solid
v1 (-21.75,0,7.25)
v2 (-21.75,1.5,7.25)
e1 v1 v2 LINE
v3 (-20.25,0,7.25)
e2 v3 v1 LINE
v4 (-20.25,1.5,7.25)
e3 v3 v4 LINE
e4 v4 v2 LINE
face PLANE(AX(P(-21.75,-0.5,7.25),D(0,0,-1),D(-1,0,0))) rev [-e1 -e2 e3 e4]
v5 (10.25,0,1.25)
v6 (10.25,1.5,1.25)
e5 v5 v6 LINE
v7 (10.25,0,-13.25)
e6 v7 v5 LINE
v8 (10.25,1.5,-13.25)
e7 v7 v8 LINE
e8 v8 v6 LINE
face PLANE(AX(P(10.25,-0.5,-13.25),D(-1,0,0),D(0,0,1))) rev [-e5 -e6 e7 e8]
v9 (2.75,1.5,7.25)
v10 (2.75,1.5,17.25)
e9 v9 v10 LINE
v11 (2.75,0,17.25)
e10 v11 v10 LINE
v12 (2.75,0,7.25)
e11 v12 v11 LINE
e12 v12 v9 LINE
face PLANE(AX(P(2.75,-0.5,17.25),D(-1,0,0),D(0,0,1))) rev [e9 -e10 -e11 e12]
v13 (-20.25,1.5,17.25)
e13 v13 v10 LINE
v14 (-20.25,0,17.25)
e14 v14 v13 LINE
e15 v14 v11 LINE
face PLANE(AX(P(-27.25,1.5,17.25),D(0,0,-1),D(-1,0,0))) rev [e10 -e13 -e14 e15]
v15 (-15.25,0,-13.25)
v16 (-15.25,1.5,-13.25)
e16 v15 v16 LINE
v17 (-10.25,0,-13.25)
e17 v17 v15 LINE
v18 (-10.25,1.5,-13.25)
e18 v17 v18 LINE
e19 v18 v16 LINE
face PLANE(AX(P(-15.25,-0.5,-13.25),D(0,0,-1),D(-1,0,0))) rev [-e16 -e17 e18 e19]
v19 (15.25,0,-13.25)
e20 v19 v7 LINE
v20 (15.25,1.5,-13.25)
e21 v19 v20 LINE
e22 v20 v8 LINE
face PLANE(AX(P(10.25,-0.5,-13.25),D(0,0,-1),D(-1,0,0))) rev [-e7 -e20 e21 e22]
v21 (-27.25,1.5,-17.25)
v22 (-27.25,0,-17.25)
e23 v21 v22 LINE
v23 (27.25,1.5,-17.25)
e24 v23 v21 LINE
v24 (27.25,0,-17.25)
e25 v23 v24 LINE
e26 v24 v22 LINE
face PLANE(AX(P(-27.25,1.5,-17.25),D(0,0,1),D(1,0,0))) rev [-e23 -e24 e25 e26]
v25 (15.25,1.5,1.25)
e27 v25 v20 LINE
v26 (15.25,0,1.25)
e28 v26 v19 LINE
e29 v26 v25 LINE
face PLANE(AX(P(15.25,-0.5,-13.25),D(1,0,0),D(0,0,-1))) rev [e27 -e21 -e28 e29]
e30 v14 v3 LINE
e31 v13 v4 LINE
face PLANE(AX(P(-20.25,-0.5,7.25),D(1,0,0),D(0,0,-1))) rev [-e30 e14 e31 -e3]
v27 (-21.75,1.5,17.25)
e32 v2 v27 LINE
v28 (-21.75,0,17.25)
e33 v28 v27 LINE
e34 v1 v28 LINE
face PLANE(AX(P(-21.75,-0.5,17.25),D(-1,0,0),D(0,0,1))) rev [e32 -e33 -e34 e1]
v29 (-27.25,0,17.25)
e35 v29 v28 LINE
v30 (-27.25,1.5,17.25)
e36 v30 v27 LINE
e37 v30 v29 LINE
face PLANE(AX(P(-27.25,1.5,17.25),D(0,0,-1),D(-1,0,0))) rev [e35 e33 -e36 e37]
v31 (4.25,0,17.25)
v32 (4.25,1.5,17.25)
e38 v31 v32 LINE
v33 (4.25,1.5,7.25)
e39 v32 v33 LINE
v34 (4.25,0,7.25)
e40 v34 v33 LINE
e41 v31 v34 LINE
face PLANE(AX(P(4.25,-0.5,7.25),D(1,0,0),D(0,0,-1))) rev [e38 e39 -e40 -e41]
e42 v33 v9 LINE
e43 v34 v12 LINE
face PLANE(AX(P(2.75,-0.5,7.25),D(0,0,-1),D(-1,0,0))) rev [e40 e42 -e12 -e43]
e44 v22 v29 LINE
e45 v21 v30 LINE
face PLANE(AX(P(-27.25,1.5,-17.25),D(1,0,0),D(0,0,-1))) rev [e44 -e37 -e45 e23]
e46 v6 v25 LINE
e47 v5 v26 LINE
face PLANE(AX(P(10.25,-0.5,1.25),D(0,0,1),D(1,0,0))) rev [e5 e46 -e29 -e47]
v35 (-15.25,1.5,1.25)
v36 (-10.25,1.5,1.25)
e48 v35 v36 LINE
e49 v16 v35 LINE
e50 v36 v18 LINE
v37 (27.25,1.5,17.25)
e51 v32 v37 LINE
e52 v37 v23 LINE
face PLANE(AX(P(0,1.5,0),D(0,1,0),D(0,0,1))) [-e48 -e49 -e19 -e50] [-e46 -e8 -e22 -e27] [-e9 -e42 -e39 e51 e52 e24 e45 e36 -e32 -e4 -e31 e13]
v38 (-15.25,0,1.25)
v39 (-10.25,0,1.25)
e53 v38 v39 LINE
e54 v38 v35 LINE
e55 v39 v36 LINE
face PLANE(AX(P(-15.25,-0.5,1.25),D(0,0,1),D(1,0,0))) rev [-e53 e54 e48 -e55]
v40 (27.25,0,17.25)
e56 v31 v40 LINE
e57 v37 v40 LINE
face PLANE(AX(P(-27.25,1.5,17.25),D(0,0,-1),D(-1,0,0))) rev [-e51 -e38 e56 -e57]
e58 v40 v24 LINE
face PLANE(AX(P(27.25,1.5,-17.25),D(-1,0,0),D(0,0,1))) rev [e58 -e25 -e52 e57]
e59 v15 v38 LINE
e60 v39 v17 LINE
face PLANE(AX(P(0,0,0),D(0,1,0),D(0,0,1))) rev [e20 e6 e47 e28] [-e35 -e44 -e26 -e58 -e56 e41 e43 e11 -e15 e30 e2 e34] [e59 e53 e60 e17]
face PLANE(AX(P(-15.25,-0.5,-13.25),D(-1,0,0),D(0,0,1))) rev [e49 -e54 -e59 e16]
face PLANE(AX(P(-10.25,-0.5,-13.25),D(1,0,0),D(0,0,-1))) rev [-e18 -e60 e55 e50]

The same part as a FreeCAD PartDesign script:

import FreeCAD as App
import Part
import Sketcher

doc = App.newDocument("Part")
params = doc.addObject("Spreadsheet::Sheet", "Params")
for row, (alias, value) in enumerate([
    ("sketch1_width", "54.5 mm"),
    ("sketch1_height", "34.5 mm"),
    ("pad1_length", "1.5 mm"),
    ("sketch2_width", "5 mm"),
    ("sketch2_height", "14.5 mm"),
    ("pocket1_length", "2 mm"),
    ("sketch3_width", "5 mm"),
    ("sketch3_height", "14.5 mm"),
    ("pocket2_length", "2 mm"),
    ("sketch4_height", "10 mm"),
    ("sketch4_width", "1.5 mm"),
    ("pocket3_length", "2 mm"),
    ("sketch5_height", "10 mm"),
    ("sketch5_width", "1.5 mm"),
    ("pocket4_length", "2 mm"),
], start=1):
    params.set(f"A{row}", alias)
    params.set(f"B{row}", "=" + value)
    params.setAlias(f"B{row}", alias)

body = doc.addObject("PartDesign::Body", "Body")

# Sketch on XZ plane
sketch1 = doc.addObject("Sketcher::SketchObject", "Sketch")
body.addObject(sketch1)
sketch1.AttachmentSupport = (doc.XZ_Plane, [""])
sketch1.MapMode = "FlatFace"
sketch1.addGeometry(Part.LineSegment(App.Vector(-27, -17, 0), App.Vector(-27, 17, 0)), False)
sketch1.addGeometry(Part.LineSegment(App.Vector(-27, 17, 0), App.Vector(27, 17, 0)), False)
sketch1.addGeometry(Part.LineSegment(App.Vector(27, 17, 0), App.Vector(27, -17, 0)), False)
sketch1.addGeometry(Part.LineSegment(App.Vector(27, -17, 0), App.Vector(-27, -17, 0)), False)
sketch1.addConstraint(Sketcher.Constraint("Coincident", 0, 2, 1, 1))
sketch1.addConstraint(Sketcher.Constraint("Coincident", 1, 2, 2, 1))
sketch1.addConstraint(Sketcher.Constraint("Coincident", 2, 2, 3, 1))
sketch1.addConstraint(Sketcher.Constraint("Coincident", 3, 2, 0, 1))
sketch1.addConstraint(Sketcher.Constraint("Vertical", 0))
sketch1.addConstraint(Sketcher.Constraint("Horizontal", 1))
sketch1.addConstraint(Sketcher.Constraint("Vertical", 2))
sketch1.addConstraint(Sketcher.Constraint("Horizontal", 3))
sketch1.addConstraint(Sketcher.Constraint("Symmetric", 0, 2, 2, 2, -1, 1))
sketch1.addConstraint(Sketcher.Constraint("DistanceX", 1, 1, 1, 2, 54.5))
sketch1.addConstraint(Sketcher.Constraint("DistanceY", 0, 1, 0, 2, 34.5))
sketch1.setExpression("Constraints[9]", "Params.sketch1_width")
sketch1.setExpression("Constraints[10]", "Params.sketch1_height")
pad1 = doc.addObject("PartDesign::Pad", "Pad")
body.addObject(pad1)
pad1.Profile = sketch1
pad1.setExpression("Length", "Params.pad1_length")
pad1.Reversed = True

# Sketch on XZ plane
sketch2 = doc.addObject("Sketcher::SketchObject", "Sketch001")
body.addObject(sketch2)
sketch2.AttachmentSupport = (doc.XZ_Plane, [""])
sketch2.MapMode = "FlatFace"
sketch2.AttachmentOffset = App.Placement(App.Vector(0, 0, -1.5), App.Rotation())
sketch2.addGeometry(Part.LineSegment(App.Vector(-15, -13, 0), App.Vector(-15, 1, 0)), False)
sketch2.addGeometry(Part.LineSegment(App.Vector(-15, 1, 0), App.Vector(-10, 1, 0)), False)
sketch2.addGeometry(Part.LineSegment(App.Vector(-10, 1, 0), App.Vector(-10, -13, 0)), False)
sketch2.addGeometry(Part.LineSegment(App.Vector(-10, -13, 0), App.Vector(-15, -13, 0)), False)
sketch2.addConstraint(Sketcher.Constraint("Coincident", 0, 2, 1, 1))
sketch2.addConstraint(Sketcher.Constraint("Coincident", 1, 2, 2, 1))
sketch2.addConstraint(Sketcher.Constraint("Coincident", 2, 2, 3, 1))
sketch2.addConstraint(Sketcher.Constraint("Coincident", 3, 2, 0, 1))
sketch2.addConstraint(Sketcher.Constraint("Vertical", 0))
sketch2.addConstraint(Sketcher.Constraint("Horizontal", 1))
sketch2.addConstraint(Sketcher.Constraint("Vertical", 2))
sketch2.addConstraint(Sketcher.Constraint("Horizontal", 3))
sketch2.addConstraint(Sketcher.Constraint("DistanceX", 1, 1, 1, 2, 5.0))
sketch2.addConstraint(Sketcher.Constraint("DistanceY", 0, 1, 0, 2, 14.5))
sketch2.addConstraint(Sketcher.Constraint("DistanceX", 0, 2, -1, 1, 15.25))
sketch2.addConstraint(Sketcher.Constraint("DistanceY", -1, 1, 0, 2, 1.25))
sketch2.setExpression("Constraints[8]", "Params.sketch2_width")
sketch2.setExpression("Constraints[9]", "Params.sketch2_height")
pocket1 = doc.addObject("PartDesign::Pocket", "Pocket")
body.addObject(pocket1)
pocket1.Profile = sketch2
pocket1.setExpression("Length", "Params.pocket1_length")
pocket1.Reversed = True

# Sketch on XZ plane
sketch3 = doc.addObject("Sketcher::SketchObject", "Sketch002")
body.addObject(sketch3)
sketch3.AttachmentSupport = (doc.XZ_Plane, [""])
sketch3.MapMode = "FlatFace"
sketch3.AttachmentOffset = App.Placement(App.Vector(0, 0, -1.5), App.Rotation())
sketch3.addGeometry(Part.LineSegment(App.Vector(10, -13, 0), App.Vector(10, 1, 0)), False)
sketch3.addGeometry(Part.LineSegment(App.Vector(10, 1, 0), App.Vector(15, 1, 0)), False)
sketch3.addGeometry(Part.LineSegment(App.Vector(15, 1, 0), App.Vector(15, -13, 0)), False)
sketch3.addGeometry(Part.LineSegment(App.Vector(15, -13, 0), App.Vector(10, -13, 0)), False)
sketch3.addConstraint(Sketcher.Constraint("Coincident", 0, 2, 1, 1))
sketch3.addConstraint(Sketcher.Constraint("Coincident", 1, 2, 2, 1))
sketch3.addConstraint(Sketcher.Constraint("Coincident", 2, 2, 3, 1))
sketch3.addConstraint(Sketcher.Constraint("Coincident", 3, 2, 0, 1))
sketch3.addConstraint(Sketcher.Constraint("Vertical", 0))
sketch3.addConstraint(Sketcher.Constraint("Horizontal", 1))
sketch3.addConstraint(Sketcher.Constraint("Vertical", 2))
sketch3.addConstraint(Sketcher.Constraint("Horizontal", 3))
sketch3.addConstraint(Sketcher.Constraint("DistanceX", 1, 1, 1, 2, 5.0))
sketch3.addConstraint(Sketcher.Constraint("DistanceY", 0, 1, 0, 2, 14.5))
sketch3.addConstraint(Sketcher.Constraint("DistanceX", -1, 1, 0, 2, 10.25))
sketch3.addConstraint(Sketcher.Constraint("DistanceY", -1, 1, 0, 2, 1.25))
sketch3.setExpression("Constraints[8]", "Params.sketch3_width")
sketch3.setExpression("Constraints[9]", "Params.sketch3_height")
pocket2 = doc.addObject("PartDesign::Pocket", "Pocket001")
body.addObject(pocket2)
pocket2.Profile = sketch3
pocket2.setExpression("Length", "Params.pocket2_length")
pocket2.Reversed = True

# Sketch on XZ plane
sketch4 = doc.addObject("Sketcher::SketchObject", "Sketch003")
body.addObject(sketch4)
sketch4.AttachmentSupport = (doc.XZ_Plane, [""])
sketch4.MapMode = "FlatFace"
sketch4.AttachmentOffset = App.Placement(App.Vector(0, 0, -1.5), App.Rotation())
sketch4.addGeometry(Part.LineSegment(App.Vector(-21.8, 7.2, 0), App.Vector(-21.8, 17.2, 0)), False)
sketch4.addGeometry(Part.LineSegment(App.Vector(-21.8, 17.2, 0), App.Vector(-20.2, 17.2, 0)), False)
sketch4.addGeometry(Part.LineSegment(App.Vector(-20.2, 17.2, 0), App.Vector(-20.2, 7.2, 0)), False)
sketch4.addGeometry(Part.LineSegment(App.Vector(-20.2, 7.2, 0), App.Vector(-21.8, 7.2, 0)), False)
sketch4.addConstraint(Sketcher.Constraint("Coincident", 0, 2, 1, 1))
sketch4.addConstraint(Sketcher.Constraint("Coincident", 1, 2, 2, 1))
sketch4.addConstraint(Sketcher.Constraint("Coincident", 2, 2, 3, 1))
sketch4.addConstraint(Sketcher.Constraint("Coincident", 3, 2, 0, 1))
sketch4.addConstraint(Sketcher.Constraint("Vertical", 0))
sketch4.addConstraint(Sketcher.Constraint("Horizontal", 1))
sketch4.addConstraint(Sketcher.Constraint("Vertical", 2))
sketch4.addConstraint(Sketcher.Constraint("Horizontal", 3))
sketch4.addConstraint(Sketcher.Constraint("DistanceY", 0, 1, 0, 2, 10.0))
sketch4.addConstraint(Sketcher.Constraint("DistanceX", 1, 1, 1, 2, 1.5))
sketch4.addConstraint(Sketcher.Constraint("DistanceX", 0, 2, -1, 1, 21.75))
sketch4.addConstraint(Sketcher.Constraint("DistanceY", -1, 1, 0, 2, 17.25))
sketch4.setExpression("Constraints[8]", "Params.sketch4_height")
sketch4.setExpression("Constraints[9]", "Params.sketch4_width")
pocket3 = doc.addObject("PartDesign::Pocket", "Pocket002")
body.addObject(pocket3)
pocket3.Profile = sketch4
pocket3.setExpression("Length", "Params.pocket3_length")
pocket3.Reversed = True

# Sketch on XZ plane
sketch5 = doc.addObject("Sketcher::SketchObject", "Sketch004")
body.addObject(sketch5)
sketch5.AttachmentSupport = (doc.XZ_Plane, [""])
sketch5.MapMode = "FlatFace"
sketch5.AttachmentOffset = App.Placement(App.Vector(0, 0, -1.5), App.Rotation())
sketch5.addGeometry(Part.LineSegment(App.Vector(2.8, 7.2, 0), App.Vector(2.8, 17.2, 0)), False)
sketch5.addGeometry(Part.LineSegment(App.Vector(2.8, 17.2, 0), App.Vector(4.2, 17.2, 0)), False)
sketch5.addGeometry(Part.LineSegment(App.Vector(4.2, 17.2, 0), App.Vector(4.2, 7.2, 0)), False)
sketch5.addGeometry(Part.LineSegment(App.Vector(4.2, 7.2, 0), App.Vector(2.8, 7.2, 0)), False)
sketch5.addConstraint(Sketcher.Constraint("Coincident", 0, 2, 1, 1))
sketch5.addConstraint(Sketcher.Constraint("Coincident", 1, 2, 2, 1))
sketch5.addConstraint(Sketcher.Constraint("Coincident", 2, 2, 3, 1))
sketch5.addConstraint(Sketcher.Constraint("Coincident", 3, 2, 0, 1))
sketch5.addConstraint(Sketcher.Constraint("Vertical", 0))
sketch5.addConstraint(Sketcher.Constraint("Horizontal", 1))
sketch5.addConstraint(Sketcher.Constraint("Vertical", 2))
sketch5.addConstraint(Sketcher.Constraint("Horizontal", 3))
sketch5.addConstraint(Sketcher.Constraint("DistanceY", 0, 1, 0, 2, 10.0))
sketch5.addConstraint(Sketcher.Constraint("DistanceX", 1, 1, 1, 2, 1.5))
sketch5.addConstraint(Sketcher.Constraint("DistanceX", -1, 1, 0, 2, 2.75))
sketch5.addConstraint(Sketcher.Constraint("DistanceY", -1, 1, 0, 2, 17.25))
sketch5.setExpression("Constraints[8]", "Params.sketch5_height")
sketch5.setExpression("Constraints[9]", "Params.sketch5_width")
pocket4 = doc.addObject("PartDesign::Pocket", "Pocket003")
body.addObject(pocket4)
pocket4.Profile = sketch5
pocket4.setExpression("Length", "Params.pocket4_length")
pocket4.Reversed = True

doc.recompute()
